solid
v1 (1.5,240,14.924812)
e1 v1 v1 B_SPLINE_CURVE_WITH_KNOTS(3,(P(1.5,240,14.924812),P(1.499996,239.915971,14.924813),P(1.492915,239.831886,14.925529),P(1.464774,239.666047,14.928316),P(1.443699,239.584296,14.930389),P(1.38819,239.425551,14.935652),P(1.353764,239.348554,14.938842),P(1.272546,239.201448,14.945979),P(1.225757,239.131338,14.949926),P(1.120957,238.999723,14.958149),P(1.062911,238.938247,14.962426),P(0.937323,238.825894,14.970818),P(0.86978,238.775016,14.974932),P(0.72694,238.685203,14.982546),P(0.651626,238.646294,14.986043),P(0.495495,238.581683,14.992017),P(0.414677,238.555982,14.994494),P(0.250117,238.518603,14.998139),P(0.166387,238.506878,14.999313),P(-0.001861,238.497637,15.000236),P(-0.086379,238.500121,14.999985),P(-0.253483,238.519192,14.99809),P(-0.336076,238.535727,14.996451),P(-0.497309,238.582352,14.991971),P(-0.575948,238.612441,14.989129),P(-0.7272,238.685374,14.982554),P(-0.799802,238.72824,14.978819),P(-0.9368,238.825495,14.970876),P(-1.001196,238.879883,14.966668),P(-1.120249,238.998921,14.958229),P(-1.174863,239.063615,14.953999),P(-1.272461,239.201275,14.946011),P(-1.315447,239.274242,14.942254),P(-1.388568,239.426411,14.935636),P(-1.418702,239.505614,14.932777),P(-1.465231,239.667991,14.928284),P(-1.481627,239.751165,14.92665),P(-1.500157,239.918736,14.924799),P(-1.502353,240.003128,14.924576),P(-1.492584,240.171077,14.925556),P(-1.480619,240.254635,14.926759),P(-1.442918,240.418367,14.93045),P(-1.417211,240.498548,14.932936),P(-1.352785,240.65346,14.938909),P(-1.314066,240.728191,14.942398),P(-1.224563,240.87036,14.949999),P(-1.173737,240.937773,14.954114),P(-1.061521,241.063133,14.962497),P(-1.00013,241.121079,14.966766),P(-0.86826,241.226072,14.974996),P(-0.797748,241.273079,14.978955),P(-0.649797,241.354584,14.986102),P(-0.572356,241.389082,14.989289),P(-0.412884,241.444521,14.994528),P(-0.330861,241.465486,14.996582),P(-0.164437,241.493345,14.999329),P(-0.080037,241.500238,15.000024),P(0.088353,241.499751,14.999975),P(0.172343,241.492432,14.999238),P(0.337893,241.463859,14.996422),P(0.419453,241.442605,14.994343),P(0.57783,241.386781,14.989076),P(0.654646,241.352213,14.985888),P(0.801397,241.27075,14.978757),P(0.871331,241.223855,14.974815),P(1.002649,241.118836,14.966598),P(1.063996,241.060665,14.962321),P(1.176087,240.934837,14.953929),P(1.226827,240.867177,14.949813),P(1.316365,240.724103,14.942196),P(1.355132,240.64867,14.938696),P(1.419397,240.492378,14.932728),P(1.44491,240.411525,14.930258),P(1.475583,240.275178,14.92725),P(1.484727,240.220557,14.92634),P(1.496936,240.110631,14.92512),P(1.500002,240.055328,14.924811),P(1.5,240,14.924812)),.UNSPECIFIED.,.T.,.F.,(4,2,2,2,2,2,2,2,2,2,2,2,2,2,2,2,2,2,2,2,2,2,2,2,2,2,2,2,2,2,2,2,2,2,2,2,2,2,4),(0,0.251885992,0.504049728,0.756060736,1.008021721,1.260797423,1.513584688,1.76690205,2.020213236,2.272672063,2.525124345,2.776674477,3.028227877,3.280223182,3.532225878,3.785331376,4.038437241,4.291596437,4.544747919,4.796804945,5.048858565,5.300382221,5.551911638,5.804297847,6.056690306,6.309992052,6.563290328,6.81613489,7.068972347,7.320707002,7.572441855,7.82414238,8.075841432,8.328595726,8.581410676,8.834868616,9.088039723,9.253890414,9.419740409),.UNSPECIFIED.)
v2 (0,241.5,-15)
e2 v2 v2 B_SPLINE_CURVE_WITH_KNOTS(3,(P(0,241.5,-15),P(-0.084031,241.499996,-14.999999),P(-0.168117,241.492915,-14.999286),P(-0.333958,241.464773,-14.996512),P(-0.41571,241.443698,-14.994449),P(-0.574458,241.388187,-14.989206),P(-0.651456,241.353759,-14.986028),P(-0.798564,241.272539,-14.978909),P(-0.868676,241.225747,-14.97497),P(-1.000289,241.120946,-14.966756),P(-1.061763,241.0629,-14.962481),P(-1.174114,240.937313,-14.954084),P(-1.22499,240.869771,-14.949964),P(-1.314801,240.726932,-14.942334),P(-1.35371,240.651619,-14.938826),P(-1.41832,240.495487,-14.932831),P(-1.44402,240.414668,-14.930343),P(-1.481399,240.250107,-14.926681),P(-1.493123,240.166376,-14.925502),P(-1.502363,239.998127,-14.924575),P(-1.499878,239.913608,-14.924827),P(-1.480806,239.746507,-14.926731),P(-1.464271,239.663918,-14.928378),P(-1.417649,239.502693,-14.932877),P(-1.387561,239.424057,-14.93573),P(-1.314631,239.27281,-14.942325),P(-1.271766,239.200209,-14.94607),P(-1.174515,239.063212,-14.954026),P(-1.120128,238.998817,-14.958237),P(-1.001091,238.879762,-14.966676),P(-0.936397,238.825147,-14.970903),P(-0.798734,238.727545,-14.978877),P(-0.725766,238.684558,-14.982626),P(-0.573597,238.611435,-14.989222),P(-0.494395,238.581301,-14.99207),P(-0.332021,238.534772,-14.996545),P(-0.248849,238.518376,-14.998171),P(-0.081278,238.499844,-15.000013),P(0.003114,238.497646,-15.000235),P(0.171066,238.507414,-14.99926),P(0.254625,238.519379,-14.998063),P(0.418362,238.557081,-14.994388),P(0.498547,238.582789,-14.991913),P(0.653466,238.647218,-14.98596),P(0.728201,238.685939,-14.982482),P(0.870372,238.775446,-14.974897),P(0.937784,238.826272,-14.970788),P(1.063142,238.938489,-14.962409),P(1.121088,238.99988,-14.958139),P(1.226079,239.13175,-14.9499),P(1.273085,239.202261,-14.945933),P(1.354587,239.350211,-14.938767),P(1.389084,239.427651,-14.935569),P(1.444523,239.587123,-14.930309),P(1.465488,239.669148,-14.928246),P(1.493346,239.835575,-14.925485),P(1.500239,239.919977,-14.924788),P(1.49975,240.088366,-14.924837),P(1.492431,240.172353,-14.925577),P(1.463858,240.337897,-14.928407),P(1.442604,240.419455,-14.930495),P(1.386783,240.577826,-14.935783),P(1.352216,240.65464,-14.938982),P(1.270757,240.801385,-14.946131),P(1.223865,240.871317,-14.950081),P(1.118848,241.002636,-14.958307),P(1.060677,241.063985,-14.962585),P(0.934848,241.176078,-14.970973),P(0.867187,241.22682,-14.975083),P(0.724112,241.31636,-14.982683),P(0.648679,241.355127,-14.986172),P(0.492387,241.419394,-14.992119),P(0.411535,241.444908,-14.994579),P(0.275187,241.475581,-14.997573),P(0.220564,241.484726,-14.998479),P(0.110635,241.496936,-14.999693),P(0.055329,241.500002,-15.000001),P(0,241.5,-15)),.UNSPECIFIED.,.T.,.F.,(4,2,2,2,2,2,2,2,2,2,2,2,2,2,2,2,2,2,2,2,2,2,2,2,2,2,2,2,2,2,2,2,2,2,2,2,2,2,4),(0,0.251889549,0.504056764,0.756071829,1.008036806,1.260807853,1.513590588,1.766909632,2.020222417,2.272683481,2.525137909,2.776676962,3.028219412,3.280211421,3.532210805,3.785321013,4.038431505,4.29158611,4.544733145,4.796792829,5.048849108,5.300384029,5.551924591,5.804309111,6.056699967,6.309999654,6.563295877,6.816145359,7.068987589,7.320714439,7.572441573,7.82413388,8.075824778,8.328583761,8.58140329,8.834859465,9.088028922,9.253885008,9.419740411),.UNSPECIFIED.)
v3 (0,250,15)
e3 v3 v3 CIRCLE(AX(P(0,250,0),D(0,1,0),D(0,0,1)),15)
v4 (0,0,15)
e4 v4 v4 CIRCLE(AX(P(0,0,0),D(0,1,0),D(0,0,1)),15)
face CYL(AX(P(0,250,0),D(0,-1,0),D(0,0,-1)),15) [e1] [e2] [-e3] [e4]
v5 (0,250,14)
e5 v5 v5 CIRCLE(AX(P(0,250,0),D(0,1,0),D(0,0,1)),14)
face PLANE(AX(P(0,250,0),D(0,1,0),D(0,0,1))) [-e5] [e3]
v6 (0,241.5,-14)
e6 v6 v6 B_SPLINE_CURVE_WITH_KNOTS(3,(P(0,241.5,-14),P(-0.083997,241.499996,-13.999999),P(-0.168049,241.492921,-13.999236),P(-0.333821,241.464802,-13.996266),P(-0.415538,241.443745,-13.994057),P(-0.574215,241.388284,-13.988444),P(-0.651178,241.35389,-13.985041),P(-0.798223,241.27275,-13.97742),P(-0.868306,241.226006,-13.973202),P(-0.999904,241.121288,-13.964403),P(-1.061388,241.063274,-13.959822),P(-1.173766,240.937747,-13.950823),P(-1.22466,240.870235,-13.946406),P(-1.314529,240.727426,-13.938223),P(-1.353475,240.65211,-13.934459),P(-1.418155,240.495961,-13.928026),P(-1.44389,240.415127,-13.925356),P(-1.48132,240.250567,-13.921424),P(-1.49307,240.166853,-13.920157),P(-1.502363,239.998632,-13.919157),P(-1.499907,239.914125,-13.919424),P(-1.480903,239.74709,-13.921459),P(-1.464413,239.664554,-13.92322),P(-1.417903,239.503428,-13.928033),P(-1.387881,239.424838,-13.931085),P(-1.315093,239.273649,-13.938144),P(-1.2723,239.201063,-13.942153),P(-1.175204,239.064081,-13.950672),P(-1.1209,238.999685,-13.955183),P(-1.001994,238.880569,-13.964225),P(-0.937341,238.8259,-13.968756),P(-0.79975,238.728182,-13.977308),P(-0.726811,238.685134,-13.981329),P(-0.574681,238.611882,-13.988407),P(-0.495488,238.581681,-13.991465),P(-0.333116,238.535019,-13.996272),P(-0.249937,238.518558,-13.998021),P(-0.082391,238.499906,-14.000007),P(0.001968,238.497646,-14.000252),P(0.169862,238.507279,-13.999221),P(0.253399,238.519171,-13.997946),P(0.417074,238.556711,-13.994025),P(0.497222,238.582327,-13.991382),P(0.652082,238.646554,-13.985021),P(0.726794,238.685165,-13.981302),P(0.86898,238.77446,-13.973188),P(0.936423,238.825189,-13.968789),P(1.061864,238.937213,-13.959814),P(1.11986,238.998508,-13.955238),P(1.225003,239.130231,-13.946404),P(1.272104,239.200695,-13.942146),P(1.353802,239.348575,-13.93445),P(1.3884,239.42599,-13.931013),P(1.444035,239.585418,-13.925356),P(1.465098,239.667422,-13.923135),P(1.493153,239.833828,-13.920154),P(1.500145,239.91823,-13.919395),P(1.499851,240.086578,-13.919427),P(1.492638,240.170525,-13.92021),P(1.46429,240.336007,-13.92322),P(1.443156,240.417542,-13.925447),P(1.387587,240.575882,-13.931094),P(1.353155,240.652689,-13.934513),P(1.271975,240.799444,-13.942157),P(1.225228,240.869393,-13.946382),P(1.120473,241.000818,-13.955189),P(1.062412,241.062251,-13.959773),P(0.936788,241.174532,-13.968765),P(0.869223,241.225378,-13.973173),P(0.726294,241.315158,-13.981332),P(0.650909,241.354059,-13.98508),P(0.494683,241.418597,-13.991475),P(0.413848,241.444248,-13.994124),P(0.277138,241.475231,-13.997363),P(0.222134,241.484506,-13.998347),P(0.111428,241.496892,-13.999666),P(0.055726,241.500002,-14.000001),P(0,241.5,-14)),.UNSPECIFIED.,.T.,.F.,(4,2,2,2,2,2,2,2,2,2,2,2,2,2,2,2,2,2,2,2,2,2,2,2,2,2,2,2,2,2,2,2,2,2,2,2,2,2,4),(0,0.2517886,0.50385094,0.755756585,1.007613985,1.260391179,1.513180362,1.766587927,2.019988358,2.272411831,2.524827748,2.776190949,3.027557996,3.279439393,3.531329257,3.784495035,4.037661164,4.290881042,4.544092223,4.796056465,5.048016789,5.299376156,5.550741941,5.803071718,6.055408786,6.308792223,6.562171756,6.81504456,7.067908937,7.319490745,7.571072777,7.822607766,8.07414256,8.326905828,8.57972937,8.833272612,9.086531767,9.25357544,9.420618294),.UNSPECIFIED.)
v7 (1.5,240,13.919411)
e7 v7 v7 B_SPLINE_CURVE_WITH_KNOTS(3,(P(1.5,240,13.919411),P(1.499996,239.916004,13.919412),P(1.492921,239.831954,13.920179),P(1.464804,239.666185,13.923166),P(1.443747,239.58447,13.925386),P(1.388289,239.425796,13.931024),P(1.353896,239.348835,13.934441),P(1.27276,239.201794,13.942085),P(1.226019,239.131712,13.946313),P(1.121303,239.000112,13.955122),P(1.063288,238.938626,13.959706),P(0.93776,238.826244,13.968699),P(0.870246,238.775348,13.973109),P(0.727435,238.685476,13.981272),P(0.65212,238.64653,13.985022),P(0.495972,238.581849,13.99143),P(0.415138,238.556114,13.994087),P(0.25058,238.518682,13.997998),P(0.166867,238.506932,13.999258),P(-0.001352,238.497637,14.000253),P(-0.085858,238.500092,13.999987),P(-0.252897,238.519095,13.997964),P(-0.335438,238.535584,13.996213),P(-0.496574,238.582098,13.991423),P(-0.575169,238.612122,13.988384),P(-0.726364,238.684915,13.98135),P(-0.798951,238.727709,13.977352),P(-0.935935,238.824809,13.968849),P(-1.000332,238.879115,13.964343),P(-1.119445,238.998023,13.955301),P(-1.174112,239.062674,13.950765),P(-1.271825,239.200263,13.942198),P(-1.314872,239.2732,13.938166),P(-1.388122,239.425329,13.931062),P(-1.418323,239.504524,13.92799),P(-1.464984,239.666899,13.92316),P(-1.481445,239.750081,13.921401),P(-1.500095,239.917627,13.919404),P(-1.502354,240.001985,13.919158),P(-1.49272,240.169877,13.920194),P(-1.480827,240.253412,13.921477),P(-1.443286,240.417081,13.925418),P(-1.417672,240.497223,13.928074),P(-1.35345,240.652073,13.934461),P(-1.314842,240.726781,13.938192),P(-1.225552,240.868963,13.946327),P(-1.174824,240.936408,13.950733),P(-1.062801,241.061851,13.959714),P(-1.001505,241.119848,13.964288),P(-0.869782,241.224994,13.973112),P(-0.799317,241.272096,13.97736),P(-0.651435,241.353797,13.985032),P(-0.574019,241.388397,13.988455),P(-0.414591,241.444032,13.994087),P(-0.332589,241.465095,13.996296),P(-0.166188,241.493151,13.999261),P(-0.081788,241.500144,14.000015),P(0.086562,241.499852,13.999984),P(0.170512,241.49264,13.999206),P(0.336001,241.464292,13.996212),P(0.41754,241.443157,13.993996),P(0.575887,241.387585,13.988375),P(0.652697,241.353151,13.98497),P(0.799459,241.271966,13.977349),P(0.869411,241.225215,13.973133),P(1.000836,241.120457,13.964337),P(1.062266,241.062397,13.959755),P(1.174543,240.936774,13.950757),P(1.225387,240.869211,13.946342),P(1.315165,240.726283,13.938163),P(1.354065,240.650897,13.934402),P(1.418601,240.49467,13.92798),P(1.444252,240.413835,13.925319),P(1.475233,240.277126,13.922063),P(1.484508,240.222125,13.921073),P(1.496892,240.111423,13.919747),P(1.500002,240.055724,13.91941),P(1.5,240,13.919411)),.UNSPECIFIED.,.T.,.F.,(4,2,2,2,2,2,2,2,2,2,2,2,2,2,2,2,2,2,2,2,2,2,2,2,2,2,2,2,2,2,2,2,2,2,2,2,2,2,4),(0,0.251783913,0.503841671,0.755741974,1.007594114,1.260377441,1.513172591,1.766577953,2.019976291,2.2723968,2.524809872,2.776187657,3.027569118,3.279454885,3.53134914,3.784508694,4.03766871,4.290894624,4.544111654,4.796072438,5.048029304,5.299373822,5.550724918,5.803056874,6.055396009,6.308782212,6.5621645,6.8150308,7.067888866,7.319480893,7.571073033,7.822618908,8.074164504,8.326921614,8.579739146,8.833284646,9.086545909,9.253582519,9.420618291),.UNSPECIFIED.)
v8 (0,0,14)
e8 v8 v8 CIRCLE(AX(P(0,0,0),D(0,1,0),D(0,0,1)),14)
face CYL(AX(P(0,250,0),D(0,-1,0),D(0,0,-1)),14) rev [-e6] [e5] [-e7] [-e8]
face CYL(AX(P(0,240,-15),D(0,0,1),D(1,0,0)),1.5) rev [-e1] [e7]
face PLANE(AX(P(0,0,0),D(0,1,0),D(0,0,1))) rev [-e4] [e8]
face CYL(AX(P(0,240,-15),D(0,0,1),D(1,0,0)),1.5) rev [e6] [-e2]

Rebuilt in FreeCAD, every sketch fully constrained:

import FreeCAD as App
import Part
import Sketcher
Q = App.Units.Quantity

doc = App.newDocument("Part")
body = doc.addObject("PartDesign::Body", "Body")

# Sketch on XZ plane
sketch1 = body.newObject("Sketcher::SketchObject", "Sketch")
sketch1.AttachmentSupport = (doc.getObject("XZ_Plane"), [""])
sketch1.MapMode = "FlatFace"
sketch1.addGeometry(Part.Circle(App.Vector(0, 0, 0), App.Vector(0, 0, 1), 15), False)
sketch1.addGeometry(Part.Circle(App.Vector(0, 0, 0), App.Vector(0, 0, 1), 14), False)
sketch1.addConstraint(Sketcher.Constraint("Coincident", 0, 3, -1, 1))
sketch1.addConstraint(Sketcher.Constraint("Coincident", 1, 3, -1, 1))
sketch1.addConstraint(Sketcher.Constraint("Diameter", 0, Q("30 mm")))
sketch1.addConstraint(Sketcher.Constraint("Diameter", 1, Q("28 mm")))
pad1 = body.newObject("PartDesign::Pad", "Pad")
pad1.Profile = sketch1
pad1.Length = 250
pad1.Reversed = True

# Sketch on XY plane
sketch2 = body.newObject("Sketcher::SketchObject", "Sketch001")
sketch2.AttachmentSupport = (doc.getObject("XY_Plane"), [""])
sketch2.MapMode = "FlatFace"
sketch2.AttachmentOffset = App.Placement(App.Vector(0, 0, 15), App.Rotation())
sketch2.addGeometry(Part.Circle(App.Vector(0, 240, 0), App.Vector(0, 0, 1), 1.5), False)
sketch2.addConstraint(Sketcher.Constraint("PointOnObject", 0, 3, -2))
sketch2.addConstraint(Sketcher.Constraint("Diameter", 0, Q("3 mm")))
sketch2.addConstraint(Sketcher.Constraint("DistanceY", -1, 1, 0, 3, Q("240 mm")))
pocket1 = body.newObject("PartDesign::Pocket", "Pocket")
pocket1.Profile = sketch2
pocket1.Type = "ThroughAll"
pocket1.Midplane = True

doc.recompute()
